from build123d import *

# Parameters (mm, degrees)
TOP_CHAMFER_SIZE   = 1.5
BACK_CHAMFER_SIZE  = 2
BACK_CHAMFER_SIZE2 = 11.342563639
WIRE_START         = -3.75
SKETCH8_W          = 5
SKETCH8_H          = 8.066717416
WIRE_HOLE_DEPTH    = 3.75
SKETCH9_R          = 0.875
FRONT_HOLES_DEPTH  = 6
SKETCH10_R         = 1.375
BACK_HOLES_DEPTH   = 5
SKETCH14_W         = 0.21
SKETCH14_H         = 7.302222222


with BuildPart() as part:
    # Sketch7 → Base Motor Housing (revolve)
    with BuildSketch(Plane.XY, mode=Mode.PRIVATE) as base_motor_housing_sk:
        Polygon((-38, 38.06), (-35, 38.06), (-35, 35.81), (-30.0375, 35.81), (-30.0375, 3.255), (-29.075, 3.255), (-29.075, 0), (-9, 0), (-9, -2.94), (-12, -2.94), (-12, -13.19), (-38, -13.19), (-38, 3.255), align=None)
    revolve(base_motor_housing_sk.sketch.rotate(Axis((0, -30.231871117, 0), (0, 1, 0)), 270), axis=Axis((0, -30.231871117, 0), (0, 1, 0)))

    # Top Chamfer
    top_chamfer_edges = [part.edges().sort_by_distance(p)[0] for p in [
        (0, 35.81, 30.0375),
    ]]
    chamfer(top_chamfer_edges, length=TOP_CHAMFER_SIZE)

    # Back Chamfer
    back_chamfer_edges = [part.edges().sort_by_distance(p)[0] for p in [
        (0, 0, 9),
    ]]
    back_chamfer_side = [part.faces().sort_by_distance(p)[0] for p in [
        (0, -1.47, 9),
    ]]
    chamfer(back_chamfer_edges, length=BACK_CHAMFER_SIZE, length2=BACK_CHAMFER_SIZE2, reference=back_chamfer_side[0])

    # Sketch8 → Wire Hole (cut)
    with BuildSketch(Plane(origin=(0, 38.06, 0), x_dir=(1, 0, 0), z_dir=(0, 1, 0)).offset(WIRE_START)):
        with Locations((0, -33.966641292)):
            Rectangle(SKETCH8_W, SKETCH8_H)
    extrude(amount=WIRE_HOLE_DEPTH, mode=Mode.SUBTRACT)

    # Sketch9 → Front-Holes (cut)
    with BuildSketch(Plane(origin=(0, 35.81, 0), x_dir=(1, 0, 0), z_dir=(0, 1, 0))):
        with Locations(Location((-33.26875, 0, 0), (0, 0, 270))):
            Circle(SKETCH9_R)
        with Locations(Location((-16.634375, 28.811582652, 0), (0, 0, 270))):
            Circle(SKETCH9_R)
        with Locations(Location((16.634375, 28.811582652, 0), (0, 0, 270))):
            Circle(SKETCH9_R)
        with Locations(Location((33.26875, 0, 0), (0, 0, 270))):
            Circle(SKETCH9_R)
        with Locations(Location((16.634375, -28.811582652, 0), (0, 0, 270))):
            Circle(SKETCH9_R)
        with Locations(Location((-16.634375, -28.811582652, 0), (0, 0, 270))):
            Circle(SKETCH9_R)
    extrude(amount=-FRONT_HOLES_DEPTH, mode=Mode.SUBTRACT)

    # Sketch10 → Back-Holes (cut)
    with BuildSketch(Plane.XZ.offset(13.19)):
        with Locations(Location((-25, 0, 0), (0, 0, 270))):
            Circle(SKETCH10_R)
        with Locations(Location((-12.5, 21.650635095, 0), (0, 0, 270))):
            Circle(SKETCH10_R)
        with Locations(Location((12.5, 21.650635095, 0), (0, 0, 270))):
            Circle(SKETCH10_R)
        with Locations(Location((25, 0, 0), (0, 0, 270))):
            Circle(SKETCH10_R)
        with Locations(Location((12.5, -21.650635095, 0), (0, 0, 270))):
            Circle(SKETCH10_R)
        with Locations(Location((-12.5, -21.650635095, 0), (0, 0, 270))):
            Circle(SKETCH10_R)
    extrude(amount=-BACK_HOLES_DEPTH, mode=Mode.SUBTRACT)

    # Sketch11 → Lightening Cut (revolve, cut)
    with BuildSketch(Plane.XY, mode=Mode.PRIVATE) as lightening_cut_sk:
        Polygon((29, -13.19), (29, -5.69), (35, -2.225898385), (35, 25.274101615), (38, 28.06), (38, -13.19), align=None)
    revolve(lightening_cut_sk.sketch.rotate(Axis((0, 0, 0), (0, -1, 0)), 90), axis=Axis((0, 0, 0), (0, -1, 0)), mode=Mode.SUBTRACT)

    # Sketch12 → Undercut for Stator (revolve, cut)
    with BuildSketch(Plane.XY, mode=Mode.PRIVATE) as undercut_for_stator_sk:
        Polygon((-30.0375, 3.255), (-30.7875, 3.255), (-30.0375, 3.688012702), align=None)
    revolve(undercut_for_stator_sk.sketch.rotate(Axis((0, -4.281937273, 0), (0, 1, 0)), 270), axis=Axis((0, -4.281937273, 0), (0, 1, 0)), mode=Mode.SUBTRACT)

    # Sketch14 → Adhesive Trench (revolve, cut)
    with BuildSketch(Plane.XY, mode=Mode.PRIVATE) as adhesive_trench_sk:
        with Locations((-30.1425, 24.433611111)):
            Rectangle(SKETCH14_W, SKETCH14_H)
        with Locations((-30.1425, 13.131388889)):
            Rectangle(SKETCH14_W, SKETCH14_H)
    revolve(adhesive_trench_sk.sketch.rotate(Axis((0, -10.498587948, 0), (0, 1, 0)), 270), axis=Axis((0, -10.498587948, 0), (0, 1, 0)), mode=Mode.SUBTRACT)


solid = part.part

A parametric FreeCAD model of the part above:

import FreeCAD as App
import Part
import Sketcher

V = App.Vector
Q = App.Units.Quantity


def edges_at(feature, points):
    """Names of the edges that pass closest to the given points."""
    edges = feature.Shape.Edges
    near = lambda p: min(range(len(edges)), key=lambda i: edges[i].distToShape(Part.Vertex(*p))[0])
    return sorted({f"Edge{near(p) + 1}" for p in points})

doc = App.newDocument("Part")
body = doc.addObject("PartDesign::Body", "Body")

# Sketch on XY plane
sketch1 = body.newObject("Sketcher::SketchObject", "Sketch")
sketch1.AttachmentSupport = (doc.getObject("XY_Plane"), [""])
sketch1.MapMode = "FlatFace"
sketch1.addGeometry([
    Part.LineSegment(V(-35, 38.1, 0), V(-38, 38.1, 0)),  # 0
    Part.LineSegment(V(-38, 38.1, 0), V(-38, -13.2, 0)),  # 1
    Part.LineSegment(V(-38, -13.2, 0), V(-12, -13.2, 0)),  # 2
    Part.LineSegment(V(-12, -13.2, 0), V(-12, -2.9, 0)),  # 3
    Part.LineSegment(V(-12, -2.9, 0), V(-9, -2.9, 0)),  # 4
    Part.LineSegment(V(-9, -2.9, 0), V(-9, 0, 0)),  # 5
    Part.LineSegment(V(-9, 0, 0), V(-29.1, 0, 0)),  # 6
    Part.LineSegment(V(-29.1, 0, 0), V(-29.1, 3.3, 0)),  # 7
    Part.LineSegment(V(-29.1, 3.3, 0), V(-30, 3.3, 0)),  # 8
    Part.LineSegment(V(-30, 3.3, 0), V(-30, 35.8, 0)),  # 9
    Part.LineSegment(V(-30, 35.8, 0), V(-35, 35.8, 0)),  # 10
    Part.LineSegment(V(-35, 35.8, 0), V(-35, 38.1, 0)),  # 11
], False)
sketch1.addConstraint([
    Sketcher.Constraint("Coincident", 0, 2, 1, 1),
    Sketcher.Constraint("Coincident", 1, 2, 2, 1),
    Sketcher.Constraint("Coincident", 2, 2, 3, 1),
    Sketcher.Constraint("Coincident", 3, 2, 4, 1),
    Sketcher.Constraint("Coincident", 4, 2, 5, 1),
    Sketcher.Constraint("Coincident", 5, 2, 6, 1),
    Sketcher.Constraint("Coincident", 6, 2, 7, 1),
    Sketcher.Constraint("Coincident", 7, 2, 8, 1),
    Sketcher.Constraint("Coincident", 8, 2, 9, 1),
    Sketcher.Constraint("Coincident", 9, 2, 10, 1),
    Sketcher.Constraint("Coincident", 10, 2, 11, 1),
    Sketcher.Constraint("Coincident", 11, 2, 0, 1),
    Sketcher.Constraint("Horizontal", 0),
    Sketcher.Constraint("Vertical", 1),
    Sketcher.Constraint("Horizontal", 2),
    Sketcher.Constraint("Vertical", 3),
    Sketcher.Constraint("Horizontal", 4),
    Sketcher.Constraint("Vertical", 5),
    Sketcher.Constraint("Horizontal", 6),
    Sketcher.Constraint("Vertical", 7),
    Sketcher.Constraint("Horizontal", 8),
    Sketcher.Constraint("Vertical", 9),
    Sketcher.Constraint("Horizontal", 10),
    Sketcher.Constraint("Vertical", 11),
    Sketcher.Constraint("PointOnObject", 5, 2, -1),
    Sketcher.Constraint("Equal", 0, 4),
    Sketcher.Constraint("DistanceX", 0, 2, 0, 1, 3.0),
    Sketcher.Constraint("DistanceX", 2, 1, 2, 2, 26.0),
    Sketcher.Constraint("DistanceX", 0, 2, -1, 1, 38.0),
    Sketcher.Constraint("DistanceY", 3, 2, 0, 2, 41.0),
    Sketcher.Constraint("DistanceY", 1, 2, 1, 1, 51.25),
    Sketcher.Constraint("DistanceY", 5, 1, 5, 2, 2.94),
    Sketcher.Constraint("DistanceY", 11, 1, 11, 2, 2.25),
    Sketcher.Constraint("DistanceX", 6, 2, 6, 1, 20.075),
    Sketcher.Constraint("DistanceY", 7, 1, 7, 2, 3.255),
    Sketcher.Constraint("DistanceX", 8, 2, 8, 1, 0.9625),
])
revolution = body.newObject("PartDesign::Revolution", "Revolution")
revolution.Profile = sketch1
revolution.ReferenceAxis = (sketch1, ["V_Axis"])
revolution.Angle = 360
doc.recompute()

chamfer = body.newObject("PartDesign::Chamfer", "Chamfer")
chamfer.Base = (revolution, edges_at(revolution, [(0, 35.81, 30.038)]))
chamfer.Size = 1.5
doc.recompute()

chamfer2 = body.newObject("PartDesign::Chamfer", "Chamfer001")
chamfer2.Base = (chamfer, edges_at(chamfer, [(0, 0, 9)]))
chamfer2.ChamferType = "Two distances"
chamfer2.Size = 2
chamfer2.Size2 = 11.342564
chamfer2.FlipDirection = True

# Sketch on XZ plane
sketch2 = body.newObject("Sketcher::SketchObject", "Sketch001")
sketch2.AttachmentSupport = (doc.getObject("XZ_Plane"), [""])
sketch2.MapMode = "FlatFace"
sketch2.AttachmentOffset = App.Placement(V(0, 0, -34.31), App.Rotation())
sketch2.addGeometry([
    Part.LineSegment(V(-2, 30, 0), V(-2, 38, 0)),
    Part.LineSegment(V(-2, 38, 0), V(2, 38, 0)),
    Part.LineSegment(V(2, 38, 0), V(2, 30, 0)),
    Part.LineSegment(V(2, 30, 0), V(-2, 30, 0)),
], False)
sketch2.addConstraint([
    Sketcher.Constraint("Coincident", 0, 2, 1, 1),
    Sketcher.Constraint("Coincident", 1, 2, 2, 1),
    Sketcher.Constraint("Coincident", 2, 2, 3, 1),
    Sketcher.Constraint("Coincident", 3, 2, 0, 1),
    Sketcher.Constraint("Vertical", 0),
    Sketcher.Constraint("Horizontal", 1),
    Sketcher.Constraint("Vertical", 2),
    Sketcher.Constraint("Horizontal", 3),
    Sketcher.Constraint("DistanceX", 1, 1, 1, 2, 5.0),
    Sketcher.Constraint("DistanceY", -1, 1, 0, 2, 38.0),
    Sketcher.Constraint("DistanceX", 0, 2, -1, 1, 2.5),
    Sketcher.Constraint("DistanceY", 0, 1, 0, 2, 8.066717),
])
pocket1 = body.newObject("PartDesign::Pocket", "Pocket")
pocket1.Profile = sketch2
pocket1.Length = 3.75

# Sketch on XZ plane
sketch3 = body.newObject("Sketcher::SketchObject", "Sketch002")
sketch3.AttachmentSupport = (doc.getObject("XZ_Plane"), [""])
sketch3.MapMode = "FlatFace"
sketch3.AttachmentOffset = App.Placement(V(0, 0, -35.81), App.Rotation())
sketch3.addGeometry([
    Part.Circle(V(-33.3, 0, 0), V(0, 0, 1), 0.9),  # 0
    Part.Circle(V(-16.6, -28.8, 0), V(0, 0, 1), 0.9),  # 1
    Part.Circle(V(16.6, -28.8, 0), V(0, 0, 1), 0.9),  # 2
    Part.Circle(V(33.3, 0, 0), V(0, 0, 1), 0.9),  # 3
    Part.Circle(V(16.6, 28.8, 0), V(0, 0, 1), 0.9),  # 4
    Part.Circle(V(-16.6, 28.8, 0), V(0, 0, 1), 0.9),  # 5
], False)
sketch3.addConstraint([
    Sketcher.Constraint("Equal", 0, 1),
    Sketcher.Constraint("Equal", 1, 2),
    Sketcher.Constraint("Equal", 2, 3),
    Sketcher.Constraint("Equal", 3, 4),
    Sketcher.Constraint("Equal", 4, 5),
    Sketcher.Constraint("Symmetric", 0, 3, 3, 3, -1, 1),
    Sketcher.Constraint("Symmetric", 1, 3, 4, 3, -1, 1),
    Sketcher.Constraint("Symmetric", 2, 3, 5, 3, -1, 1),
    Sketcher.Constraint("Symmetric", 1, 3, 2, 3, -2),
    Sketcher.Constraint("PointOnObject", 0, 3, -1),
    Sketcher.Constraint("Diameter", 0, 1.75),
    Sketcher.Constraint("DistanceX", 0, 3, 3, 3, 66.5375),
    Sketcher.Constraint("DistanceX", 1, 3, 2, 3, 33.26875),
    Sketcher.Constraint("DistanceY", 1, 3, -1, 1, 28.811583),
])
pocket2 = body.newObject("PartDesign::Pocket", "Pocket001")
pocket2.Profile = sketch3
pocket2.Length = 6
pocket2.Reversed = True

# Sketch on XZ plane
sketch4 = body.newObject("Sketcher::SketchObject", "Sketch003")
sketch4.AttachmentSupport = (doc.getObject("XZ_Plane"), [""])
sketch4.MapMode = "FlatFace"
sketch4.AttachmentOffset = App.Placement(V(0, 0, 13.19), App.Rotation())
sketch4.addGeometry([
    Part.Circle(V(-25, 0, 0), V(0, 0, 1), 1.4),  # 0
    Part.Circle(V(-12.5, 21.7, 0), V(0, 0, 1), 1.4),  # 1
    Part.Circle(V(12.5, 21.7, 0), V(0, 0, 1), 1.4),  # 2
    Part.Circle(V(25, 0, 0), V(0, 0, 1), 1.4),  # 3
    Part.Circle(V(12.5, -21.7, 0), V(0, 0, 1), 1.4),  # 4
    Part.Circle(V(-12.5, -21.7, 0), V(0, 0, 1), 1.4),  # 5
], False)
sketch4.addConstraint([
    Sketcher.Constraint("Equal", 0, 1),
    Sketcher.Constraint("Equal", 1, 2),
    Sketcher.Constraint("Equal", 2, 3),
    Sketcher.Constraint("Equal", 3, 4),
    Sketcher.Constraint("Equal", 4, 5),
    Sketcher.Constraint("Symmetric", 0, 3, 3, 3, -1, 1),
    Sketcher.Constraint("Symmetric", 1, 3, 4, 3, -1, 1),
    Sketcher.Constraint("Symmetric", 2, 3, 5, 3, -1, 1),
    Sketcher.Constraint("Symmetric", 1, 3, 2, 3, -2),
    Sketcher.Constraint("PointOnObject", 0, 3, -1),
    Sketcher.Constraint("Diameter", 0, 2.75),
    Sketcher.Constraint("DistanceX", 0, 3, -1, 1, 25.0),
    Sketcher.Constraint("DistanceX", 1, 3, 2, 3, 25.0),
    Sketcher.Constraint("DistanceY", 4, 3, 2, 3, 43.30127),
])
pocket3 = body.newObject("PartDesign::Pocket", "Pocket002")
pocket3.Profile = sketch4
pocket3.Length = 5

# Sketch on XY plane
sketch5 = body.newObject("Sketcher::SketchObject", "Sketch004")
sketch5.AttachmentSupport = (doc.getObject("XY_Plane"), [""])
sketch5.MapMode = "FlatFace"
sketch5.addGeometry([
    Part.LineSegment(V(29, -5.7, 0), V(29, -13.2, 0)),  # 0
    Part.LineSegment(V(29, -13.2, 0), V(38, -13.2, 0)),  # 1
    Part.LineSegment(V(38, -13.2, 0), V(38, 28.1, 0)),  # 2
    Part.LineSegment(V(38, 28.1, 0), V(35, 25.3, 0)),  # 3
    Part.LineSegment(V(35, 25.3, 0), V(35, -2.2, 0)),  # 4
    Part.LineSegment(V(35, -2.2, 0), V(29, -5.7, 0)),  # 5
], False)
sketch5.addConstraint([
    Sketcher.Constraint("Coincident", 0, 2, 1, 1),
    Sketcher.Constraint("Coincident", 1, 2, 2, 1),
    Sketcher.Constraint("Coincident", 2, 2, 3, 1),
    Sketcher.Constraint("Coincident", 3, 2, 4, 1),
    Sketcher.Constraint("Coincident", 4, 2, 5, 1),
    Sketcher.Constraint("Coincident", 5, 2, 0, 1),
    Sketcher.Constraint("Vertical", 0),
    Sketcher.Constraint("Horizontal", 1),
    Sketcher.Constraint("Vertical", 2),
    Sketcher.Constraint("Vertical", 4),
    Sketcher.Constraint("DistanceX", 1, 1, 1, 2, 9.0),
    Sketcher.Constraint("Angle", 5, Q("-150 deg")),
    Sketcher.Constraint("DistanceY", 0, 2, 0, 1, 7.5),
    Sketcher.Constraint("DistanceY", 4, 2, 4, 1, 27.5),
    Sketcher.Constraint("DistanceX", -1, 1, 0, 2, 29.0),
    Sketcher.Constraint("DistanceX", -1, 1, 3, 2, 35.0),
    Sketcher.Constraint("DistanceY", 2, 1, 2, 2, 41.25),
    Sketcher.Constraint("DistanceY", 0, 2, -1, 1, 13.19),
])
groove = body.newObject("PartDesign::Groove", "Groove")
groove.Profile = sketch5
groove.ReferenceAxis = (sketch5, ["V_Axis"])
groove.Angle = 360

# Sketch on XY plane
sketch6 = body.newObject("Sketcher::SketchObject", "Sketch005")
sketch6.AttachmentSupport = (doc.getObject("XY_Plane"), [""])
sketch6.MapMode = "FlatFace"
sketch6.addGeometry([
    Part.LineSegment(V(-30.79, 3.25, 0), V(-30.04, 3.25, 0)),
    Part.LineSegment(V(-30.04, 3.25, 0), V(-30.04, 3.69, 0)),
    Part.LineSegment(V(-30.04, 3.69, 0), V(-30.79, 3.25, 0)),
], False)
sketch6.addConstraint([
    Sketcher.Constraint("Coincident", 0, 2, 1, 1),
    Sketcher.Constraint("Coincident", 1, 2, 2, 1),
    Sketcher.Constraint("Coincident", 2, 2, 0, 1),
    Sketcher.Constraint("Horizontal", 0),
    Sketcher.Constraint("Vertical", 1),
    Sketcher.Constraint("Angle", 2, Q("-150 deg")),
    Sketcher.Constraint("DistanceX", 0, 1, 0, 2, 0.75),
    Sketcher.Constraint("DistanceY", -1, 1, 0, 2, 3.255),
    Sketcher.Constraint("DistanceX", 0, 2, -1, 1, 30.0375),
])
groove2 = body.newObject("PartDesign::Groove", "Groove001")
groove2.Profile = sketch6
groove2.ReferenceAxis = (sketch6, ["V_Axis"])
groove2.Angle = 360

# Sketch on XY plane
sketch7 = body.newObject("Sketcher::SketchObject", "Sketch006")
sketch7.AttachmentSupport = (doc.getObject("XY_Plane"), [""])
sketch7.MapMode = "FlatFace"
sketch7.addGeometry([
    Part.LineSegment(V(-30.25, 28.08, 0), V(-30.25, 20.78, 0)),  # 0
    Part.LineSegment(V(-30.25, 20.78, 0), V(-30.04, 20.78, 0)),  # 1
    Part.LineSegment(V(-30.04, 20.78, 0), V(-30.04, 28.08, 0)),  # 2
    Part.LineSegment(V(-30.04, 28.08, 0), V(-30.25, 28.08, 0)),  # 3
    Part.LineSegment(V(-30.25, 16.78, 0), V(-30.25, 9.48, 0)),  # 4
    Part.LineSegment(V(-30.25, 9.48, 0), V(-30.04, 9.48, 0)),  # 5
    Part.LineSegment(V(-30.04, 9.48, 0), V(-30.04, 16.78, 0)),  # 6
    Part.LineSegment(V(-30.04, 16.78, 0), V(-30.25, 16.78, 0)),  # 7
], False)
sketch7.addConstraint([
    Sketcher.Constraint("Coincident", 0, 2, 1, 1),
    Sketcher.Constraint("Coincident", 1, 2, 2, 1),
    Sketcher.Constraint("Coincident", 2, 2, 3, 1),
    Sketcher.Constraint("Coincident", 3, 2, 0, 1),
    Sketcher.Constraint("Coincident", 4, 2, 5, 1),
    Sketcher.Constraint("Coincident", 5, 2, 6, 1),
    Sketcher.Constraint("Coincident", 6, 2, 7, 1),
    Sketcher.Constraint("Coincident", 7, 2, 4, 1),
    Sketcher.Constraint("Vertical", 0),
    Sketcher.Constraint("Horizontal", 1),
    Sketcher.Constraint("Vertical", 2),
    Sketcher.Constraint("Horizontal", 3),
    Sketcher.Constraint("Vertical", 4),
    Sketcher.Constraint("Horizontal", 5),
    Sketcher.Constraint("Vertical", 6),
    Sketcher.Constraint("Horizontal", 7),
    Sketcher.Constraint("Vertical", 3, 2, 4, 2),
    Sketcher.Constraint("Vertical", 2, 2, 5, 2),
    Sketcher.Constraint("Equal", 2, 4),
    Sketcher.Constraint("DistanceY", 6, 2, 1, 2, 4.0),
    Sketcher.Constraint("DistanceX", 1, 1, 1, 2, 0.21),
    Sketcher.Constraint("DistanceX", 0, 2, -1, 1, 30.2475),
    Sketcher.Constraint("DistanceY", -1, 1, 0, 2, 20.7825),
    Sketcher.Constraint("DistanceY", 0, 2, 0, 1, 7.302222),
])
groove3 = body.newObject("PartDesign::Groove", "Groove002")
groove3.Profile = sketch7
groove3.ReferenceAxis = (sketch7, ["V_Axis"])
groove3.Angle = 360

doc.recompute()
